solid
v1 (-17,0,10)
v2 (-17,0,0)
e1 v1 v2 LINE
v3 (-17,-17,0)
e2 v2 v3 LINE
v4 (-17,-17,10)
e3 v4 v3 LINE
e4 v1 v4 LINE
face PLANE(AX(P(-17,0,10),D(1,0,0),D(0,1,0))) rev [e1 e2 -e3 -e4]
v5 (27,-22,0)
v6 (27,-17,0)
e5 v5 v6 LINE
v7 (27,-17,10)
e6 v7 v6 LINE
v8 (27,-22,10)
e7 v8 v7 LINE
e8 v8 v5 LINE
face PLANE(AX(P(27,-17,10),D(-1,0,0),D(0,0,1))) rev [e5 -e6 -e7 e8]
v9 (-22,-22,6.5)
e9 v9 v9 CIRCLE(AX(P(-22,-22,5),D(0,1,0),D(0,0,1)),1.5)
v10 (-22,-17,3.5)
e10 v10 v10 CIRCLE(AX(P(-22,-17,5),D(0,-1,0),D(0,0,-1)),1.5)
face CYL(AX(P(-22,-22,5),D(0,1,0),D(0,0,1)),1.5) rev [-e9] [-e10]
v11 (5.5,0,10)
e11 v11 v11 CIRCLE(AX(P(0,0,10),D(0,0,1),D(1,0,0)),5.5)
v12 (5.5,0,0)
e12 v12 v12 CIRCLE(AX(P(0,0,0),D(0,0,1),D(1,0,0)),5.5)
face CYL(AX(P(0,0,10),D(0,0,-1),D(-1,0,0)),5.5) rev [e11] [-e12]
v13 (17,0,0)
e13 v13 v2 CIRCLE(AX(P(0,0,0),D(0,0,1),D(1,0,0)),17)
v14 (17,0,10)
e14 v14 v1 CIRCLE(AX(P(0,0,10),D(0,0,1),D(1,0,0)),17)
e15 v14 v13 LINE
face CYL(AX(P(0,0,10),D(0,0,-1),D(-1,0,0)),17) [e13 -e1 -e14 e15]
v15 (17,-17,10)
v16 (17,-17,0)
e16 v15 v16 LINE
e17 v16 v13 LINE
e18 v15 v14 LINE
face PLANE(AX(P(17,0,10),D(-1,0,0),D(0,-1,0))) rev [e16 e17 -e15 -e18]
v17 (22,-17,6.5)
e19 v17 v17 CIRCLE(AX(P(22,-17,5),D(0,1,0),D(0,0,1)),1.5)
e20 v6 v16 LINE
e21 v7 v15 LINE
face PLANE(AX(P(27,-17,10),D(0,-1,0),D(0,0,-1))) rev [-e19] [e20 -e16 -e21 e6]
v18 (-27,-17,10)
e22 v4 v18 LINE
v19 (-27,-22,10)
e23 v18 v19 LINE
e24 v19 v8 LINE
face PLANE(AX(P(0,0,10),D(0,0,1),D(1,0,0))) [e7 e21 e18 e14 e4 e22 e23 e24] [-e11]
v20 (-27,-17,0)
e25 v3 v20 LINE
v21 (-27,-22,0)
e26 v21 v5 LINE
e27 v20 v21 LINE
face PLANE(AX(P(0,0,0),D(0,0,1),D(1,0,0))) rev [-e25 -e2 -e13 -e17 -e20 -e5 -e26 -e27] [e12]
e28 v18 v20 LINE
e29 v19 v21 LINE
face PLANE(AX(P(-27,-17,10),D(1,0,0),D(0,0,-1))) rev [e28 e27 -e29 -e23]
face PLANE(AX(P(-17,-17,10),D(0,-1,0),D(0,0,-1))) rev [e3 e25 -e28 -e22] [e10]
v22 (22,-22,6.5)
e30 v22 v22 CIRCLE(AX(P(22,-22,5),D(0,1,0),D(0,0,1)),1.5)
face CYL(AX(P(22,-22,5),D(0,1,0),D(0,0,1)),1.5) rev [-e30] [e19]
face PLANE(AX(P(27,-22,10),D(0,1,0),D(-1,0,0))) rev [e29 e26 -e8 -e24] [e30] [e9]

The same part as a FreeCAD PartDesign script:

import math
import FreeCAD as App
import Part
import Sketcher

doc = App.newDocument("Part")
body = doc.addObject("PartDesign::Body", "Body")

sketch1 = doc.addObject("Sketcher::SketchObject", "Sketch")
body.addObject(sketch1)
sketch1.AttachmentSupport = (doc.XY_Plane, [""])
sketch1.MapMode = "FlatFace"
sketch1.addGeometry([
    Part.LineSegment(App.Vector(-17, 0, 0), App.Vector(-17, -17, 0)),
    Part.LineSegment(App.Vector(-17, -17, 0), App.Vector(-27, -17, 0)),
    Part.LineSegment(App.Vector(-27, -17, 0), App.Vector(-27, -22, 0)),
    Part.LineSegment(App.Vector(-27, -22, 0), App.Vector(27, -22, 0)),
    Part.LineSegment(App.Vector(27, -22, 0), App.Vector(27, -17, 0)),
    Part.LineSegment(App.Vector(27, -17, 0), App.Vector(17, -17, 0)),
    Part.LineSegment(App.Vector(17, -17, 0), App.Vector(17, 0, 0)),
    Part.ArcOfCircle(Part.Circle(App.Vector(0, 0, 0), App.Vector(0, 0, 1), 17), math.radians(0), math.radians(180)),
    Part.Circle(App.Vector(0, 0, 0), App.Vector(0, 0, 1), 6),
], False)
sketch1.addConstraint([
    Sketcher.Constraint("Coincident", 0, 2, 1, 1),
    Sketcher.Constraint("Coincident", 1, 2, 2, 1),
    Sketcher.Constraint("Coincident", 2, 2, 3, 1),
    Sketcher.Constraint("Coincident", 3, 2, 4, 1),
    Sketcher.Constraint("Coincident", 4, 2, 5, 1),
    Sketcher.Constraint("Coincident", 5, 2, 6, 1),
    Sketcher.Constraint("Tangent", 6, 2, 7, 1),
    Sketcher.Constraint("Tangent", 7, 2, 0, 1),
    Sketcher.Constraint("Vertical", 0),
    Sketcher.Constraint("Horizontal", 1),
    Sketcher.Constraint("Vertical", 2),
    Sketcher.Constraint("Horizontal", 3),
    Sketcher.Constraint("Vertical", 4),
    Sketcher.Constraint("Horizontal", 5),
    Sketcher.Constraint("Vertical", 6),
    Sketcher.Constraint("Coincident", 7, 3, -1, 1),
    Sketcher.Constraint("Coincident", 8, 3, -1, 1),
    Sketcher.Constraint("Symmetric", 1, 2, 4, 2, -2),
    Sketcher.Constraint("Diameter", 8, 11.0),
    Sketcher.Constraint("Radius", 7, 17.0),
    Sketcher.Constraint("DistanceX", 1, 2, 1, 1, 10.0),
    Sketcher.Constraint("DistanceY", 0, 2, 0, 1, 17.0),
    Sketcher.Constraint("DistanceY", 2, 2, 2, 1, 5.0),
])
pad1 = doc.addObject("PartDesign::Pad", "Pad")
body.addObject(pad1)
pad1.Profile = sketch1
pad1.Length = 10

sketch2 = doc.addObject("Sketcher::SketchObject", "Sketch001")
body.addObject(sketch2)
sketch2.AttachmentSupport = (doc.XZ_Plane, [""])
sketch2.MapMode = "FlatFace"
sketch2.AttachmentOffset = App.Placement(App.Vector(0, 0, 17), App.Rotation())
sketch2.addGeometry(Part.Circle(App.Vector(22, 5, 0), App.Vector(0, 0, 1), 1.5), False)
sketch2.addConstraint([
    Sketcher.Constraint("Diameter", 0, 3.0),
    Sketcher.Constraint("DistanceX", -1, 1, 0, 3, 22.0),
    Sketcher.Constraint("DistanceY", -1, 1, 0, 3, 5.0),
])
pocket1 = doc.addObject("PartDesign::Pocket", "Pocket")
body.addObject(pocket1)
pocket1.Profile = sketch2
pocket1.Type = "ThroughAll"
pocket1.Reversed = True

sketch3 = doc.addObject("Sketcher::SketchObject", "Sketch002")
body.addObject(sketch3)
sketch3.AttachmentSupport = (doc.XZ_Plane, [""])
sketch3.MapMode = "FlatFace"
sketch3.AttachmentOffset = App.Placement(App.Vector(0, 0, 17), App.Rotation())
sketch3.addGeometry(Part.Circle(App.Vector(-22, 5, 0), App.Vector(0, 0, 1), 1.5), False)
sketch3.addConstraint([
    Sketcher.Constraint("Diameter", 0, 3.0),
    Sketcher.Constraint("DistanceX", 0, 3, -1, 1, 22.0),
    Sketcher.Constraint("DistanceY", -1, 1, 0, 3, 5.0),
])
pocket2 = doc.addObject("PartDesign::Pocket", "Pocket001")
body.addObject(pocket2)
pocket2.Profile = sketch3
pocket2.Type = "ThroughAll"
pocket2.Midplane = True

doc.recompute()
